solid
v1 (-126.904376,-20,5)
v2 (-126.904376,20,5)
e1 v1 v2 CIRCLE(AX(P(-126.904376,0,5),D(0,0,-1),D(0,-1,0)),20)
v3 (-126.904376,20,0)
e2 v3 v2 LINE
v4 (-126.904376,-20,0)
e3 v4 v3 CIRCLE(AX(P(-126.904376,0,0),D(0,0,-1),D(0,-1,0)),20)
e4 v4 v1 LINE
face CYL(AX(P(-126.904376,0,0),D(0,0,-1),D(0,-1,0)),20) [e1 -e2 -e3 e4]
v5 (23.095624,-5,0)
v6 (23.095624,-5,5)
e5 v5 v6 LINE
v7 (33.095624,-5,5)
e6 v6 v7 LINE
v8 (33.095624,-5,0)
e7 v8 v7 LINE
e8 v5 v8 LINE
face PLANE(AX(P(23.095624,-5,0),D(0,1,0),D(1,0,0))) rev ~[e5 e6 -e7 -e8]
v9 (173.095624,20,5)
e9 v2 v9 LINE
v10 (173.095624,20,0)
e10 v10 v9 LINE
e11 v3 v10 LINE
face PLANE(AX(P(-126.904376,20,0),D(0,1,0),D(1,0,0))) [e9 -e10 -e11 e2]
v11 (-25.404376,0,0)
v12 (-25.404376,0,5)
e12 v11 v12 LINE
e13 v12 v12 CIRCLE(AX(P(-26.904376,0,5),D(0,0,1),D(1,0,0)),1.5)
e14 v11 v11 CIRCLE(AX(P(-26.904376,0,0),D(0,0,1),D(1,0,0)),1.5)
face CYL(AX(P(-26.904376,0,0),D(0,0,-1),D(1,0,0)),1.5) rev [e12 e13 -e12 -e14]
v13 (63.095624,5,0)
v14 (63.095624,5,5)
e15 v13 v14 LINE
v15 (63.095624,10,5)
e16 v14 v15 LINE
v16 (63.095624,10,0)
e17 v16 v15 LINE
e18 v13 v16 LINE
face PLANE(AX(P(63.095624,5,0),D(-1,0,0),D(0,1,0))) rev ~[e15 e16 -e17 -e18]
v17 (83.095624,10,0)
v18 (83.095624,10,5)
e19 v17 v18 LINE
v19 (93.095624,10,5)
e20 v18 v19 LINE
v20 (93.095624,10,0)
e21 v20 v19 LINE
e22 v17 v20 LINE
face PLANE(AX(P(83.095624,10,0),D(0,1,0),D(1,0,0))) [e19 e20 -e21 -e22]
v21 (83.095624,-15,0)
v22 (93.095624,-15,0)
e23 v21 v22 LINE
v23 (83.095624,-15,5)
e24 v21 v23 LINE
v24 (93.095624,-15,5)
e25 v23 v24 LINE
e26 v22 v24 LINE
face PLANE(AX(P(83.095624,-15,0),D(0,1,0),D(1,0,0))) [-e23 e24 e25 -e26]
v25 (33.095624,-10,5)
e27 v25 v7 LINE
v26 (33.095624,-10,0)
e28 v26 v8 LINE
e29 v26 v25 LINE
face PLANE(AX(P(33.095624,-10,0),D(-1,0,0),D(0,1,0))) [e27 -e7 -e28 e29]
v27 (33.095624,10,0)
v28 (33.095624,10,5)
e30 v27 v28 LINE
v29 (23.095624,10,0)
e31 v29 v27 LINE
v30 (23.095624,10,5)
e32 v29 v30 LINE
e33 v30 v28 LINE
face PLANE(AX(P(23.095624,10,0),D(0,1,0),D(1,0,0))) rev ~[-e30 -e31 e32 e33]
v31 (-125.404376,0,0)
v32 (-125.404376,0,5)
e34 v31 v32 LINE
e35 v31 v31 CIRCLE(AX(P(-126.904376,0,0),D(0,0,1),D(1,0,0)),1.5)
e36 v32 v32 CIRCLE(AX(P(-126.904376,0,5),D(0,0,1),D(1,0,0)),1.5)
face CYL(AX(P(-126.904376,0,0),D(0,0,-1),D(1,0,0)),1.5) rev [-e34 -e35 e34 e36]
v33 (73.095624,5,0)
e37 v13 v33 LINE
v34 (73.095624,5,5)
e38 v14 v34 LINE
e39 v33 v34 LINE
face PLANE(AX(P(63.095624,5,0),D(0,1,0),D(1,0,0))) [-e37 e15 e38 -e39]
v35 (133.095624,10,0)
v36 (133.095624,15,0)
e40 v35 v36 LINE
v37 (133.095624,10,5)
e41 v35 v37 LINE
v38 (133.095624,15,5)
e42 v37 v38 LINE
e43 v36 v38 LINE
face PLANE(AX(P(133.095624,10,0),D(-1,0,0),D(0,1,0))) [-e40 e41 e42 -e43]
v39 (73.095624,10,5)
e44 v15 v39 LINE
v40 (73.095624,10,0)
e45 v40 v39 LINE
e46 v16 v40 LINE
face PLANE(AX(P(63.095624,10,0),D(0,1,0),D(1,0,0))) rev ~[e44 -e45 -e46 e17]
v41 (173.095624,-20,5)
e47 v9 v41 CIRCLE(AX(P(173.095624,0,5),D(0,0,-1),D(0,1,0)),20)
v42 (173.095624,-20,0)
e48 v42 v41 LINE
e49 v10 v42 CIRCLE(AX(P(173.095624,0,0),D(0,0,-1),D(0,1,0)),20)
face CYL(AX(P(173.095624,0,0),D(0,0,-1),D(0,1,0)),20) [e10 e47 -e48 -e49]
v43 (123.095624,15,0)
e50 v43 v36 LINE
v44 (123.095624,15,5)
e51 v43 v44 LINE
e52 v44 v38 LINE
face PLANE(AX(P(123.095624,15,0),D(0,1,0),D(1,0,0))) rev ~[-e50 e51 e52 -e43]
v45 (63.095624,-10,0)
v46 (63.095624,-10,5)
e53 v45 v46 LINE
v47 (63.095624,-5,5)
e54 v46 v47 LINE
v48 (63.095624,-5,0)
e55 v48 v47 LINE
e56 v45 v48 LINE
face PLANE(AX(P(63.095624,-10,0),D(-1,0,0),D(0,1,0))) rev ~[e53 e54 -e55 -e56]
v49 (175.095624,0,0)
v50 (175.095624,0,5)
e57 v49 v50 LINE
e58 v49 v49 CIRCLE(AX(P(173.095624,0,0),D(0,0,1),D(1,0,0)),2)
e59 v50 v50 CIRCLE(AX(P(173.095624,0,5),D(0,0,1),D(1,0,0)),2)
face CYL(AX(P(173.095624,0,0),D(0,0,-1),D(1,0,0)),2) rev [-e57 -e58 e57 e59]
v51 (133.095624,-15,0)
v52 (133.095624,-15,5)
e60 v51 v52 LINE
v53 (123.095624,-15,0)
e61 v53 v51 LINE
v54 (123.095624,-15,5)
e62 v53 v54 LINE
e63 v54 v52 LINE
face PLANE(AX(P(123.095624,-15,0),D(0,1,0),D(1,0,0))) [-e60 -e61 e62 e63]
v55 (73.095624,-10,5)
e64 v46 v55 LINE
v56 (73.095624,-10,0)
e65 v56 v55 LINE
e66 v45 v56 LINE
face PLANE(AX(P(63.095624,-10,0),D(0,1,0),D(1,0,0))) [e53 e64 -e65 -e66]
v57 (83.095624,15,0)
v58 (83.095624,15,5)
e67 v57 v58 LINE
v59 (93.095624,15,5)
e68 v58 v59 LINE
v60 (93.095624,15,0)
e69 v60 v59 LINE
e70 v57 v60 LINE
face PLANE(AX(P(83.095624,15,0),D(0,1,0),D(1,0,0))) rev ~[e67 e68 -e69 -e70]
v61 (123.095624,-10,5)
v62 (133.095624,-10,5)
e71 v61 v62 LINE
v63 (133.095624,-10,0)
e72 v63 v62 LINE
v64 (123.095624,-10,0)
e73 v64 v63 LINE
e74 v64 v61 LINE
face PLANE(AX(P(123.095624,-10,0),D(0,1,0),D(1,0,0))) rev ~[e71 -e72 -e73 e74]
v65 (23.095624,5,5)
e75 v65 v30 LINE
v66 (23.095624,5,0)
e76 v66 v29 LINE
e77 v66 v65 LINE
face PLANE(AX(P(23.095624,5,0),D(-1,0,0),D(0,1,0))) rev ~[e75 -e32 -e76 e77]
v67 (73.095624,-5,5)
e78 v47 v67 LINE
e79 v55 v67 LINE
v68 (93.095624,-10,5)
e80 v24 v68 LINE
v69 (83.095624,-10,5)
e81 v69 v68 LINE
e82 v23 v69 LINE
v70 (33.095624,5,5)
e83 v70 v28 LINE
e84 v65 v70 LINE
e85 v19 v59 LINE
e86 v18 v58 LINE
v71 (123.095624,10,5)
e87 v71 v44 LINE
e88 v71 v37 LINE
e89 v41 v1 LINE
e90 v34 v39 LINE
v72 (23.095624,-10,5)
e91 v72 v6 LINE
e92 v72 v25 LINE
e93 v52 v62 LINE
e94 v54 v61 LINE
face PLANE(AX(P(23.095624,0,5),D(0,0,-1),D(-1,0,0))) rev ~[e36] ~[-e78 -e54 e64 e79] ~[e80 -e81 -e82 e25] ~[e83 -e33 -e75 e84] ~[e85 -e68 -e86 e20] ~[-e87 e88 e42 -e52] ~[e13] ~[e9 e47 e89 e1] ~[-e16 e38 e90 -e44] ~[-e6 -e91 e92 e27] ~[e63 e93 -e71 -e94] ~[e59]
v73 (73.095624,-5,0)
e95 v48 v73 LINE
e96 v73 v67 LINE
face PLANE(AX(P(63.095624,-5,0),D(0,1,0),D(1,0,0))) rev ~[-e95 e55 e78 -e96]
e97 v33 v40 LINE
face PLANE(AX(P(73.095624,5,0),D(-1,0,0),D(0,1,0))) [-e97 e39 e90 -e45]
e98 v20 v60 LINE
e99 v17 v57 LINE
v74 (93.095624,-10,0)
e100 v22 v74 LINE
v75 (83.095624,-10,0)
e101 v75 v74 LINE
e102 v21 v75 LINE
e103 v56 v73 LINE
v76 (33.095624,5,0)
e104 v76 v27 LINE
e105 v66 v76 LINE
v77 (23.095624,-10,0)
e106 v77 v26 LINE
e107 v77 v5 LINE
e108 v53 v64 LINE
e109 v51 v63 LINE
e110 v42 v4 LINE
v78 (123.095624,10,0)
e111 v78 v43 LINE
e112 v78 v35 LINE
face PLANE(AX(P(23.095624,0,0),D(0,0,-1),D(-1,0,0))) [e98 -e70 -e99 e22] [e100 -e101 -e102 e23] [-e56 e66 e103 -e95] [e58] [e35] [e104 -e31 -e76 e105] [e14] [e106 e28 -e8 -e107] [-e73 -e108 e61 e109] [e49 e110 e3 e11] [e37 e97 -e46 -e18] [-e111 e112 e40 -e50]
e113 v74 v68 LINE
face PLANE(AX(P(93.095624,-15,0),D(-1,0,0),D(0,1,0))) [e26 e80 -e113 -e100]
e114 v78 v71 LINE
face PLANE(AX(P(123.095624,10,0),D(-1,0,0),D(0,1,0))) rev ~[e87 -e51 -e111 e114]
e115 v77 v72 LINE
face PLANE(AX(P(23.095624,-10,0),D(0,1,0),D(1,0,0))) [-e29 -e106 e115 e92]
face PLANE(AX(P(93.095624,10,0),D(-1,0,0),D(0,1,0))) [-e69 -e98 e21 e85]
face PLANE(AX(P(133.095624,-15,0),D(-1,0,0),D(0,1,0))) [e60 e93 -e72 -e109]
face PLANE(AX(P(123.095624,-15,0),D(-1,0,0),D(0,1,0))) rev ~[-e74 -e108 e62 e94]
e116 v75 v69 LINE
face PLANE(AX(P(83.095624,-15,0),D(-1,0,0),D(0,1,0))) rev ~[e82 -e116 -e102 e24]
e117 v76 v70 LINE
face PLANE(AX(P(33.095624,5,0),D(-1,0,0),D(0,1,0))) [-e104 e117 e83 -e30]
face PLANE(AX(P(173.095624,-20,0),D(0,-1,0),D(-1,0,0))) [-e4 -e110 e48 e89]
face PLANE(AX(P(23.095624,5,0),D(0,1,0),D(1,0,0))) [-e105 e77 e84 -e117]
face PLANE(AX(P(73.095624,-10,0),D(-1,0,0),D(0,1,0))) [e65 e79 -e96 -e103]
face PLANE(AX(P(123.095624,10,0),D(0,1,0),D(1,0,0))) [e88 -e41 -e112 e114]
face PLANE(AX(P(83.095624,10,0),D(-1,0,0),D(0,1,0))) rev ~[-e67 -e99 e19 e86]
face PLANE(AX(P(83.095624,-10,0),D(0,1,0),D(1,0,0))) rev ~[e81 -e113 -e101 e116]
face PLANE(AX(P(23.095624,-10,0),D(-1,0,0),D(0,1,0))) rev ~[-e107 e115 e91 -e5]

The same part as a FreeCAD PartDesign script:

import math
import FreeCAD as App
import Part
import Sketcher
Q = App.Units.Quantity


def add_polygon(sketch, points):
    """Adds a closed chain of lines whose ends are joined by coincident constraints."""
    first, n = sketch.GeometryCount, len(points)
    for a, b in zip(points, points[1:] + points[:1]):
        sketch.addGeometry(Part.LineSegment(App.Vector(*a, 0), App.Vector(*b, 0)), False)
    for i in range(n):
        sketch.addConstraint(Sketcher.Constraint("Coincident", first + i, 2, first + (i + 1) % n, 1))

doc = App.newDocument("Part")
body = doc.addObject("PartDesign::Body", "Body")

sketch1 = body.newObject("Sketcher::SketchObject", "Sketch")
sketch1.AttachmentSupport = (doc.getObject("XY_Plane"), [""])
sketch1.MapMode = "FlatFace"
sketch1.addGeometry(Part.LineSegment(App.Vector(173.095624, 20, 0), App.Vector(-126.904376, 20, 0)), False)
sketch1.addGeometry(Part.ArcOfCircle(Part.Circle(App.Vector(-126.904376, 0, 0), App.Vector(0, 0, 1), 20), math.radians(90), math.radians(270)), False)
sketch1.addGeometry(Part.LineSegment(App.Vector(-126.904376, -20, 0), App.Vector(173.095624, -20, 0)), False)
sketch1.addGeometry(Part.ArcOfCircle(Part.Circle(App.Vector(173.095624, 0, 0), App.Vector(0, 0, 1), 20), math.radians(-90), math.radians(90)), False)
add_polygon(sketch1, [(123.095624, -15), (123.095624, -10), (133.095624, -10), (133.095624, -15)])
add_polygon(sketch1, [(83.095624, -15), (83.095624, -10), (93.095624, -10), (93.095624, -15)])
add_polygon(sketch1, [(63.095624, -10), (63.095624, -5), (73.095624, -5), (73.095624, -10)])
add_polygon(sketch1, [(23.095624, -10), (23.095624, -5), (33.095624, -5), (33.095624, -10)])
sketch1.addGeometry(Part.Circle(App.Vector(173.095624, 0, 0), App.Vector(0, 0, 1), 2), False)
add_polygon(sketch1, [(123.095624, 10), (123.095624, 15), (133.095624, 15), (133.095624, 10)])
add_polygon(sketch1, [(63.095624, 5), (63.095624, 10), (73.095624, 10), (73.095624, 5)])
add_polygon(sketch1, [(23.095624, 5), (23.095624, 10), (33.095624, 10), (33.095624, 5)])
add_polygon(sketch1, [(83.095624, 10), (83.095624, 15), (93.095624, 15), (93.095624, 10)])
sketch1.addGeometry(Part.Circle(App.Vector(-26.904376, 0, 0), App.Vector(0, 0, 1), 1.5), False)
sketch1.addGeometry(Part.Circle(App.Vector(-126.904376, 0, 0), App.Vector(0, 0, 1), 1.5), False)
sketch1.addConstraint([
    Sketcher.Constraint("Tangent", 0, 2, 1, 1),
    Sketcher.Constraint("Tangent", 1, 2, 2, 1),
    Sketcher.Constraint("Tangent", 2, 2, 3, 1),
    Sketcher.Constraint("Tangent", 3, 2, 0, 1),
    Sketcher.Constraint("Horizontal", 0),
    Sketcher.Constraint("Horizontal", 2),
    Sketcher.Constraint("Vertical", 4),
    Sketcher.Constraint("Horizontal", 5),
    Sketcher.Constraint("Vertical", 6),
    Sketcher.Constraint("Horizontal", 7),
    Sketcher.Constraint("Vertical", 8),
    Sketcher.Constraint("Horizontal", 9),
    Sketcher.Constraint("Vertical", 10),
    Sketcher.Constraint("Horizontal", 11),
    Sketcher.Constraint("Vertical", 12),
    Sketcher.Constraint("Horizontal", 13),
    Sketcher.Constraint("Vertical", 14),
    Sketcher.Constraint("Horizontal", 15),
    Sketcher.Constraint("Vertical", 16),
    Sketcher.Constraint("Horizontal", 17),
    Sketcher.Constraint("Vertical", 18),
    Sketcher.Constraint("Horizontal", 19),
    Sketcher.Constraint("Vertical", 21),
    Sketcher.Constraint("Horizontal", 22),
    Sketcher.Constraint("Vertical", 23),
    Sketcher.Constraint("Horizontal", 24),
    Sketcher.Constraint("Vertical", 25),
    Sketcher.Constraint("Horizontal", 26),
    Sketcher.Constraint("Vertical", 27),
    Sketcher.Constraint("Horizontal", 28),
    Sketcher.Constraint("Vertical", 29),
    Sketcher.Constraint("Horizontal", 30),
    Sketcher.Constraint("Vertical", 31),
    Sketcher.Constraint("Horizontal", 32),
    Sketcher.Constraint("Vertical", 33),
    Sketcher.Constraint("Horizontal", 34),
    Sketcher.Constraint("Vertical", 35),
    Sketcher.Constraint("Horizontal", 36),
    Sketcher.Constraint("Coincident", 20, 3, 3, 3),
    Sketcher.Constraint("Coincident", 38, 3, 1, 3),
    Sketcher.Constraint("Equal", 37, 38),
    Sketcher.Constraint("Symmetric", 7, 2, 21, 2, -1),
    Sketcher.Constraint("Symmetric", 5, 2, 23, 2, -1),
    Sketcher.Constraint("Symmetric", 15, 2, 25, 2, -1),
    Sketcher.Constraint("Symmetric", 13, 2, 27, 2, -1),
    Sketcher.Constraint("Symmetric", 19, 2, 29, 2, -1),
    Sketcher.Constraint("Symmetric", 17, 2, 31, 2, -1),
    Sketcher.Constraint("Symmetric", 11, 2, 33, 2, -1),
    Sketcher.Constraint("Symmetric", 9, 2, 35, 2, -1),
    Sketcher.Constraint("PointOnObject", 1, 3, -1),
    Sketcher.Constraint("PointOnObject", 37, 3, -1),
    Sketcher.Constraint("Horizontal", 5, 2, 8, 2),
    Sketcher.Constraint("Horizontal", 7, 2, 10, 2),
    Sketcher.Constraint("Horizontal", 9, 2, 14, 2),
    Sketcher.Constraint("Horizontal", 13, 2, 16, 2),
    Sketcher.Constraint("Horizontal", 15, 2, 18, 2),
    Sketcher.Constraint("Equal", 7, 9),
    Sketcher.Constraint("Equal", 11, 13),
    Sketcher.Constraint("Equal", 15, 17),
    Sketcher.Constraint("Equal", 10, 12),
    Sketcher.Constraint("Diameter", 20, Q("4 mm")),
    Sketcher.Constraint("Diameter", 37, Q("3 mm")),
    Sketcher.Constraint("Radius", 1, Q("20 mm")),
    Sketcher.Constraint("DistanceX", 0, 2, 0, 1, Q("300 mm")),
    Sketcher.Constraint("DistanceX", 5, 1, 5, 2, Q("10 mm")),
    Sketcher.Constraint("DistanceY", 4, 1, 4, 2, Q("5 mm")),
    Sketcher.Constraint("DistanceY", 4, 2, -1, 1, Q("10 mm")),
    Sketcher.Constraint("DistanceX", 1, 3, 37, 3, Q("100 mm")),
    Sketcher.Constraint("DistanceX", 4, 2, 3, 3, Q("50 mm")),
    Sketcher.Constraint("DistanceX", 8, 2, 4, 2, Q("40 mm")),
    Sketcher.Constraint("DistanceX", 12, 2, 8, 2, Q("20 mm")),
    Sketcher.Constraint("DistanceX", 16, 2, 12, 2, Q("40 mm")),
    Sketcher.Constraint("DistanceX", 1, 3, -1, 1, Q("126.904376 mm")),
])
pad1 = body.newObject("PartDesign::Pad", "Pad")
pad1.Profile = sketch1
pad1.Length = 5

doc.recompute()
